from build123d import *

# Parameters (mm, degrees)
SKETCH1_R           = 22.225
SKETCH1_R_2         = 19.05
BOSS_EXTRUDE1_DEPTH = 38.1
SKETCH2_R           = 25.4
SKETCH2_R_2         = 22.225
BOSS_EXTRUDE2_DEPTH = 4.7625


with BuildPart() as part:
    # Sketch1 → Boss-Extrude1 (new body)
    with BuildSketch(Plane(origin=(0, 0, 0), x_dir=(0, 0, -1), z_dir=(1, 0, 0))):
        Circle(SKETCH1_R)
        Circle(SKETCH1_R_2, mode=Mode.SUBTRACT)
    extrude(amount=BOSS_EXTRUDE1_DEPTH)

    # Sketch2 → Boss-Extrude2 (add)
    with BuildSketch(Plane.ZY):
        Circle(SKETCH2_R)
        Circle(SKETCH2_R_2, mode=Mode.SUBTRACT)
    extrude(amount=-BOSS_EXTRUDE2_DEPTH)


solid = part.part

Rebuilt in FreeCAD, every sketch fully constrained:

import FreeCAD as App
import Part
import Sketcher
from FreeCAD import Vector
Q = App.Units.Quantity

doc = App.newDocument("Part")
body = doc.addObject("PartDesign::Body", "Body")

sketch1 = body.newObject("Sketcher::SketchObject", "Sketch")
sketch1.AttachmentSupport = (doc.getObject("YZ_Plane"), [""])
sketch1.MapMode = "FlatFace"
sketch1.addGeometry(Part.Circle(Vector(0, 0, 0), Vector(0, 0, 1), 22.225), False)
sketch1.addGeometry(Part.Circle(Vector(0, 0, 0), Vector(0, 0, 1), 19.05), False)
sketch1.addConstraint(Sketcher.Constraint("Coincident", 0, 3, -1, 1))
sketch1.addConstraint(Sketcher.Constraint("Coincident", 1, 3, -1, 1))
sketch1.addConstraint(Sketcher.Constraint("Diameter", 1, Q("1.5 in")))
sketch1.addConstraint(Sketcher.Constraint("Diameter", 0, Q("1.75 in")))
pad1 = body.newObject("PartDesign::Pad", "Pad")
pad1.Profile = sketch1
pad1.Length = Q("1.5 in")

sketch2 = body.newObject("Sketcher::SketchObject", "Sketch001")
sketch2.AttachmentSupport = (doc.getObject("YZ_Plane"), [""])
sketch2.MapMode = "FlatFace"
sketch2.addGeometry(Part.Circle(Vector(0, 0, 0), Vector(0, 0, 1), 25.4), False)
sketch2.addGeometry(Part.Circle(Vector(0, 0, 0), Vector(0, 0, 1), 22.225), False)
sketch2.addConstraint(Sketcher.Constraint("Coincident", 0, 3, -1, 1))
sketch2.addConstraint(Sketcher.Constraint("Coincident", 1, 3, -1, 1))
sketch2.addConstraint(Sketcher.Constraint("Diameter", 0, Q("2 in")))
sketch2.addConstraint(Sketcher.Constraint("Diameter", 1, Q("1.75 in")))
pad2 = body.newObject("PartDesign::Pad", "Pad001")
pad2.Profile = sketch2
pad2.Length = Q("0.1875 in")

doc.recompute()
